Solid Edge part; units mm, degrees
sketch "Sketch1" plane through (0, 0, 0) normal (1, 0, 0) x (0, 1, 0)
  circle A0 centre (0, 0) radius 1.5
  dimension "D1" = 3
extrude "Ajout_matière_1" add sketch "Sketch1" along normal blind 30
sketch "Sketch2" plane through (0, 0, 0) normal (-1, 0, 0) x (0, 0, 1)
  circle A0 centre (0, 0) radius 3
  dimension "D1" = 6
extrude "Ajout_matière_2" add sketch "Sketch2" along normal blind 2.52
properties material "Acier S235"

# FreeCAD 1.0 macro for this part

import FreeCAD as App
import Part
import Sketcher

doc = App.newDocument("Part")
body = doc.addObject("PartDesign::Body", "Body")

# Sketch on YZ plane
sketch1 = body.newObject("Sketcher::SketchObject", "Sketch")
sketch1.AttachmentSupport = (doc.getObject("YZ_Plane"), [""])
sketch1.MapMode = "FlatFace"
sketch1.addGeometry(Part.Circle(App.Vector(0, 0, 0), App.Vector(0, 0, 1), 1.5), False)
sketch1.addConstraint([
    Sketcher.Constraint("Coincident", 0, 3, -1, 1),
    Sketcher.Constraint("Diameter", 0, 3.0),
])
pad1 = body.newObject("PartDesign::Pad", "Pad")
pad1.Profile = sketch1
pad1.Length = 30

# Sketch on YZ plane
sketch2 = body.newObject("Sketcher::SketchObject", "Sketch001")
sketch2.AttachmentSupport = (doc.getObject("YZ_Plane"), [""])
sketch2.MapMode = "FlatFace"
sketch2.addGeometry(Part.Circle(App.Vector(0, 0, 0), App.Vector(0, 0, 1), 3), False)
sketch2.addConstraint([
    Sketcher.Constraint("Coincident", 0, 3, -1, 1),
    Sketcher.Constraint("Diameter", 0, 6.0),
])
pad2 = body.newObject("PartDesign::Pad", "Pad001")
pad2.Profile = sketch2
pad2.Length = 2.52
pad2.Reversed = True

doc.recompute()
